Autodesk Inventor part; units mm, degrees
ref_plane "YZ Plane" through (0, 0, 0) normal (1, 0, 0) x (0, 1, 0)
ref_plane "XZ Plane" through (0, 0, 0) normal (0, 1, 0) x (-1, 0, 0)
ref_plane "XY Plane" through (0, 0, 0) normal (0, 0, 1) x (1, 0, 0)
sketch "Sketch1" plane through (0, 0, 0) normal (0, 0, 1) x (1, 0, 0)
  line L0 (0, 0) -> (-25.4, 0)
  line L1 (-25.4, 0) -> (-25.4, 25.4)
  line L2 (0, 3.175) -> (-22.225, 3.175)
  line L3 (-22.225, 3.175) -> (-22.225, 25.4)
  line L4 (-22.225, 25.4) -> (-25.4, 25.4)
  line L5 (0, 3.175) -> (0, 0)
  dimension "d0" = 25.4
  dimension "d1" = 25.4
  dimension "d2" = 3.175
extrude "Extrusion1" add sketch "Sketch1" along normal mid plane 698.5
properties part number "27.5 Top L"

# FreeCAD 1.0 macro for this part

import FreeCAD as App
import Part
import Sketcher

V = App.Vector
Q = App.Units.Quantity


def add_polygon(sketch, points):
    """Adds a closed chain of lines whose ends are joined by coincident constraints."""
    first, n = sketch.GeometryCount, len(points)
    for a, b in zip(points, points[1:] + points[:1]):
        sketch.addGeometry(Part.LineSegment(App.Vector(*a, 0), App.Vector(*b, 0)), False)
    for i in range(n):
        sketch.addConstraint(Sketcher.Constraint("Coincident", first + i, 2, first + (i + 1) % n, 1))

doc = App.newDocument("Part")
params = doc.addObject("Spreadsheet::Sheet", "Params")
for row, (alias, value) in enumerate([
    ("sketch1_width", "1 in"),
    ("sketch1_width2", "0.125 in"),
    ("pad1_length", "27.5 in"),
], start=1):
    params.set(f"A{row}", alias)
    params.set(f"B{row}", "=" + value)
    params.setAlias(f"B{row}", alias)

body = doc.addObject("PartDesign::Body", "Body")

# Sketch on XY plane
sketch1 = body.newObject("Sketcher::SketchObject", "Sketch")
sketch1.AttachmentSupport = (doc.getObject("XY_Plane"), [""])
sketch1.MapMode = "FlatFace"
add_polygon(sketch1, [(-25.4, 0), (0, 0), (0, 3.2), (-22.2, 3.2), (-22.2, 25.4), (-25.4, 25.4)])  # lines 0-5
sketch1.addConstraint([
    Sketcher.Constraint("Horizontal", 0),
    Sketcher.Constraint("Vertical", 1),
    Sketcher.Constraint("Horizontal", 2),
    Sketcher.Constraint("Vertical", 3),
    Sketcher.Constraint("Horizontal", 4),
    Sketcher.Constraint("Vertical", 5),
    Sketcher.Constraint("Coincident", 0, 2, -1, 1),
    Sketcher.Constraint("Equal", 4, 1),
    Sketcher.Constraint("Equal", 2, 3),
    Sketcher.Constraint("DistanceX", 0, 1, 0, 2, Q("1 in")),
    Sketcher.Constraint("DistanceX", 4, 2, 4, 1, Q("0.125 in")),
])
sketch1.setExpression("Constraints[15]", "Params.sketch1_width")
sketch1.setExpression("Constraints[16]", "Params.sketch1_width2")
pad1 = body.newObject("PartDesign::Pad", "Pad")
pad1.Profile = sketch1
pad1.setExpression("Length", "Params.pad1_length")
pad1.Midplane = True

doc.recompute()
